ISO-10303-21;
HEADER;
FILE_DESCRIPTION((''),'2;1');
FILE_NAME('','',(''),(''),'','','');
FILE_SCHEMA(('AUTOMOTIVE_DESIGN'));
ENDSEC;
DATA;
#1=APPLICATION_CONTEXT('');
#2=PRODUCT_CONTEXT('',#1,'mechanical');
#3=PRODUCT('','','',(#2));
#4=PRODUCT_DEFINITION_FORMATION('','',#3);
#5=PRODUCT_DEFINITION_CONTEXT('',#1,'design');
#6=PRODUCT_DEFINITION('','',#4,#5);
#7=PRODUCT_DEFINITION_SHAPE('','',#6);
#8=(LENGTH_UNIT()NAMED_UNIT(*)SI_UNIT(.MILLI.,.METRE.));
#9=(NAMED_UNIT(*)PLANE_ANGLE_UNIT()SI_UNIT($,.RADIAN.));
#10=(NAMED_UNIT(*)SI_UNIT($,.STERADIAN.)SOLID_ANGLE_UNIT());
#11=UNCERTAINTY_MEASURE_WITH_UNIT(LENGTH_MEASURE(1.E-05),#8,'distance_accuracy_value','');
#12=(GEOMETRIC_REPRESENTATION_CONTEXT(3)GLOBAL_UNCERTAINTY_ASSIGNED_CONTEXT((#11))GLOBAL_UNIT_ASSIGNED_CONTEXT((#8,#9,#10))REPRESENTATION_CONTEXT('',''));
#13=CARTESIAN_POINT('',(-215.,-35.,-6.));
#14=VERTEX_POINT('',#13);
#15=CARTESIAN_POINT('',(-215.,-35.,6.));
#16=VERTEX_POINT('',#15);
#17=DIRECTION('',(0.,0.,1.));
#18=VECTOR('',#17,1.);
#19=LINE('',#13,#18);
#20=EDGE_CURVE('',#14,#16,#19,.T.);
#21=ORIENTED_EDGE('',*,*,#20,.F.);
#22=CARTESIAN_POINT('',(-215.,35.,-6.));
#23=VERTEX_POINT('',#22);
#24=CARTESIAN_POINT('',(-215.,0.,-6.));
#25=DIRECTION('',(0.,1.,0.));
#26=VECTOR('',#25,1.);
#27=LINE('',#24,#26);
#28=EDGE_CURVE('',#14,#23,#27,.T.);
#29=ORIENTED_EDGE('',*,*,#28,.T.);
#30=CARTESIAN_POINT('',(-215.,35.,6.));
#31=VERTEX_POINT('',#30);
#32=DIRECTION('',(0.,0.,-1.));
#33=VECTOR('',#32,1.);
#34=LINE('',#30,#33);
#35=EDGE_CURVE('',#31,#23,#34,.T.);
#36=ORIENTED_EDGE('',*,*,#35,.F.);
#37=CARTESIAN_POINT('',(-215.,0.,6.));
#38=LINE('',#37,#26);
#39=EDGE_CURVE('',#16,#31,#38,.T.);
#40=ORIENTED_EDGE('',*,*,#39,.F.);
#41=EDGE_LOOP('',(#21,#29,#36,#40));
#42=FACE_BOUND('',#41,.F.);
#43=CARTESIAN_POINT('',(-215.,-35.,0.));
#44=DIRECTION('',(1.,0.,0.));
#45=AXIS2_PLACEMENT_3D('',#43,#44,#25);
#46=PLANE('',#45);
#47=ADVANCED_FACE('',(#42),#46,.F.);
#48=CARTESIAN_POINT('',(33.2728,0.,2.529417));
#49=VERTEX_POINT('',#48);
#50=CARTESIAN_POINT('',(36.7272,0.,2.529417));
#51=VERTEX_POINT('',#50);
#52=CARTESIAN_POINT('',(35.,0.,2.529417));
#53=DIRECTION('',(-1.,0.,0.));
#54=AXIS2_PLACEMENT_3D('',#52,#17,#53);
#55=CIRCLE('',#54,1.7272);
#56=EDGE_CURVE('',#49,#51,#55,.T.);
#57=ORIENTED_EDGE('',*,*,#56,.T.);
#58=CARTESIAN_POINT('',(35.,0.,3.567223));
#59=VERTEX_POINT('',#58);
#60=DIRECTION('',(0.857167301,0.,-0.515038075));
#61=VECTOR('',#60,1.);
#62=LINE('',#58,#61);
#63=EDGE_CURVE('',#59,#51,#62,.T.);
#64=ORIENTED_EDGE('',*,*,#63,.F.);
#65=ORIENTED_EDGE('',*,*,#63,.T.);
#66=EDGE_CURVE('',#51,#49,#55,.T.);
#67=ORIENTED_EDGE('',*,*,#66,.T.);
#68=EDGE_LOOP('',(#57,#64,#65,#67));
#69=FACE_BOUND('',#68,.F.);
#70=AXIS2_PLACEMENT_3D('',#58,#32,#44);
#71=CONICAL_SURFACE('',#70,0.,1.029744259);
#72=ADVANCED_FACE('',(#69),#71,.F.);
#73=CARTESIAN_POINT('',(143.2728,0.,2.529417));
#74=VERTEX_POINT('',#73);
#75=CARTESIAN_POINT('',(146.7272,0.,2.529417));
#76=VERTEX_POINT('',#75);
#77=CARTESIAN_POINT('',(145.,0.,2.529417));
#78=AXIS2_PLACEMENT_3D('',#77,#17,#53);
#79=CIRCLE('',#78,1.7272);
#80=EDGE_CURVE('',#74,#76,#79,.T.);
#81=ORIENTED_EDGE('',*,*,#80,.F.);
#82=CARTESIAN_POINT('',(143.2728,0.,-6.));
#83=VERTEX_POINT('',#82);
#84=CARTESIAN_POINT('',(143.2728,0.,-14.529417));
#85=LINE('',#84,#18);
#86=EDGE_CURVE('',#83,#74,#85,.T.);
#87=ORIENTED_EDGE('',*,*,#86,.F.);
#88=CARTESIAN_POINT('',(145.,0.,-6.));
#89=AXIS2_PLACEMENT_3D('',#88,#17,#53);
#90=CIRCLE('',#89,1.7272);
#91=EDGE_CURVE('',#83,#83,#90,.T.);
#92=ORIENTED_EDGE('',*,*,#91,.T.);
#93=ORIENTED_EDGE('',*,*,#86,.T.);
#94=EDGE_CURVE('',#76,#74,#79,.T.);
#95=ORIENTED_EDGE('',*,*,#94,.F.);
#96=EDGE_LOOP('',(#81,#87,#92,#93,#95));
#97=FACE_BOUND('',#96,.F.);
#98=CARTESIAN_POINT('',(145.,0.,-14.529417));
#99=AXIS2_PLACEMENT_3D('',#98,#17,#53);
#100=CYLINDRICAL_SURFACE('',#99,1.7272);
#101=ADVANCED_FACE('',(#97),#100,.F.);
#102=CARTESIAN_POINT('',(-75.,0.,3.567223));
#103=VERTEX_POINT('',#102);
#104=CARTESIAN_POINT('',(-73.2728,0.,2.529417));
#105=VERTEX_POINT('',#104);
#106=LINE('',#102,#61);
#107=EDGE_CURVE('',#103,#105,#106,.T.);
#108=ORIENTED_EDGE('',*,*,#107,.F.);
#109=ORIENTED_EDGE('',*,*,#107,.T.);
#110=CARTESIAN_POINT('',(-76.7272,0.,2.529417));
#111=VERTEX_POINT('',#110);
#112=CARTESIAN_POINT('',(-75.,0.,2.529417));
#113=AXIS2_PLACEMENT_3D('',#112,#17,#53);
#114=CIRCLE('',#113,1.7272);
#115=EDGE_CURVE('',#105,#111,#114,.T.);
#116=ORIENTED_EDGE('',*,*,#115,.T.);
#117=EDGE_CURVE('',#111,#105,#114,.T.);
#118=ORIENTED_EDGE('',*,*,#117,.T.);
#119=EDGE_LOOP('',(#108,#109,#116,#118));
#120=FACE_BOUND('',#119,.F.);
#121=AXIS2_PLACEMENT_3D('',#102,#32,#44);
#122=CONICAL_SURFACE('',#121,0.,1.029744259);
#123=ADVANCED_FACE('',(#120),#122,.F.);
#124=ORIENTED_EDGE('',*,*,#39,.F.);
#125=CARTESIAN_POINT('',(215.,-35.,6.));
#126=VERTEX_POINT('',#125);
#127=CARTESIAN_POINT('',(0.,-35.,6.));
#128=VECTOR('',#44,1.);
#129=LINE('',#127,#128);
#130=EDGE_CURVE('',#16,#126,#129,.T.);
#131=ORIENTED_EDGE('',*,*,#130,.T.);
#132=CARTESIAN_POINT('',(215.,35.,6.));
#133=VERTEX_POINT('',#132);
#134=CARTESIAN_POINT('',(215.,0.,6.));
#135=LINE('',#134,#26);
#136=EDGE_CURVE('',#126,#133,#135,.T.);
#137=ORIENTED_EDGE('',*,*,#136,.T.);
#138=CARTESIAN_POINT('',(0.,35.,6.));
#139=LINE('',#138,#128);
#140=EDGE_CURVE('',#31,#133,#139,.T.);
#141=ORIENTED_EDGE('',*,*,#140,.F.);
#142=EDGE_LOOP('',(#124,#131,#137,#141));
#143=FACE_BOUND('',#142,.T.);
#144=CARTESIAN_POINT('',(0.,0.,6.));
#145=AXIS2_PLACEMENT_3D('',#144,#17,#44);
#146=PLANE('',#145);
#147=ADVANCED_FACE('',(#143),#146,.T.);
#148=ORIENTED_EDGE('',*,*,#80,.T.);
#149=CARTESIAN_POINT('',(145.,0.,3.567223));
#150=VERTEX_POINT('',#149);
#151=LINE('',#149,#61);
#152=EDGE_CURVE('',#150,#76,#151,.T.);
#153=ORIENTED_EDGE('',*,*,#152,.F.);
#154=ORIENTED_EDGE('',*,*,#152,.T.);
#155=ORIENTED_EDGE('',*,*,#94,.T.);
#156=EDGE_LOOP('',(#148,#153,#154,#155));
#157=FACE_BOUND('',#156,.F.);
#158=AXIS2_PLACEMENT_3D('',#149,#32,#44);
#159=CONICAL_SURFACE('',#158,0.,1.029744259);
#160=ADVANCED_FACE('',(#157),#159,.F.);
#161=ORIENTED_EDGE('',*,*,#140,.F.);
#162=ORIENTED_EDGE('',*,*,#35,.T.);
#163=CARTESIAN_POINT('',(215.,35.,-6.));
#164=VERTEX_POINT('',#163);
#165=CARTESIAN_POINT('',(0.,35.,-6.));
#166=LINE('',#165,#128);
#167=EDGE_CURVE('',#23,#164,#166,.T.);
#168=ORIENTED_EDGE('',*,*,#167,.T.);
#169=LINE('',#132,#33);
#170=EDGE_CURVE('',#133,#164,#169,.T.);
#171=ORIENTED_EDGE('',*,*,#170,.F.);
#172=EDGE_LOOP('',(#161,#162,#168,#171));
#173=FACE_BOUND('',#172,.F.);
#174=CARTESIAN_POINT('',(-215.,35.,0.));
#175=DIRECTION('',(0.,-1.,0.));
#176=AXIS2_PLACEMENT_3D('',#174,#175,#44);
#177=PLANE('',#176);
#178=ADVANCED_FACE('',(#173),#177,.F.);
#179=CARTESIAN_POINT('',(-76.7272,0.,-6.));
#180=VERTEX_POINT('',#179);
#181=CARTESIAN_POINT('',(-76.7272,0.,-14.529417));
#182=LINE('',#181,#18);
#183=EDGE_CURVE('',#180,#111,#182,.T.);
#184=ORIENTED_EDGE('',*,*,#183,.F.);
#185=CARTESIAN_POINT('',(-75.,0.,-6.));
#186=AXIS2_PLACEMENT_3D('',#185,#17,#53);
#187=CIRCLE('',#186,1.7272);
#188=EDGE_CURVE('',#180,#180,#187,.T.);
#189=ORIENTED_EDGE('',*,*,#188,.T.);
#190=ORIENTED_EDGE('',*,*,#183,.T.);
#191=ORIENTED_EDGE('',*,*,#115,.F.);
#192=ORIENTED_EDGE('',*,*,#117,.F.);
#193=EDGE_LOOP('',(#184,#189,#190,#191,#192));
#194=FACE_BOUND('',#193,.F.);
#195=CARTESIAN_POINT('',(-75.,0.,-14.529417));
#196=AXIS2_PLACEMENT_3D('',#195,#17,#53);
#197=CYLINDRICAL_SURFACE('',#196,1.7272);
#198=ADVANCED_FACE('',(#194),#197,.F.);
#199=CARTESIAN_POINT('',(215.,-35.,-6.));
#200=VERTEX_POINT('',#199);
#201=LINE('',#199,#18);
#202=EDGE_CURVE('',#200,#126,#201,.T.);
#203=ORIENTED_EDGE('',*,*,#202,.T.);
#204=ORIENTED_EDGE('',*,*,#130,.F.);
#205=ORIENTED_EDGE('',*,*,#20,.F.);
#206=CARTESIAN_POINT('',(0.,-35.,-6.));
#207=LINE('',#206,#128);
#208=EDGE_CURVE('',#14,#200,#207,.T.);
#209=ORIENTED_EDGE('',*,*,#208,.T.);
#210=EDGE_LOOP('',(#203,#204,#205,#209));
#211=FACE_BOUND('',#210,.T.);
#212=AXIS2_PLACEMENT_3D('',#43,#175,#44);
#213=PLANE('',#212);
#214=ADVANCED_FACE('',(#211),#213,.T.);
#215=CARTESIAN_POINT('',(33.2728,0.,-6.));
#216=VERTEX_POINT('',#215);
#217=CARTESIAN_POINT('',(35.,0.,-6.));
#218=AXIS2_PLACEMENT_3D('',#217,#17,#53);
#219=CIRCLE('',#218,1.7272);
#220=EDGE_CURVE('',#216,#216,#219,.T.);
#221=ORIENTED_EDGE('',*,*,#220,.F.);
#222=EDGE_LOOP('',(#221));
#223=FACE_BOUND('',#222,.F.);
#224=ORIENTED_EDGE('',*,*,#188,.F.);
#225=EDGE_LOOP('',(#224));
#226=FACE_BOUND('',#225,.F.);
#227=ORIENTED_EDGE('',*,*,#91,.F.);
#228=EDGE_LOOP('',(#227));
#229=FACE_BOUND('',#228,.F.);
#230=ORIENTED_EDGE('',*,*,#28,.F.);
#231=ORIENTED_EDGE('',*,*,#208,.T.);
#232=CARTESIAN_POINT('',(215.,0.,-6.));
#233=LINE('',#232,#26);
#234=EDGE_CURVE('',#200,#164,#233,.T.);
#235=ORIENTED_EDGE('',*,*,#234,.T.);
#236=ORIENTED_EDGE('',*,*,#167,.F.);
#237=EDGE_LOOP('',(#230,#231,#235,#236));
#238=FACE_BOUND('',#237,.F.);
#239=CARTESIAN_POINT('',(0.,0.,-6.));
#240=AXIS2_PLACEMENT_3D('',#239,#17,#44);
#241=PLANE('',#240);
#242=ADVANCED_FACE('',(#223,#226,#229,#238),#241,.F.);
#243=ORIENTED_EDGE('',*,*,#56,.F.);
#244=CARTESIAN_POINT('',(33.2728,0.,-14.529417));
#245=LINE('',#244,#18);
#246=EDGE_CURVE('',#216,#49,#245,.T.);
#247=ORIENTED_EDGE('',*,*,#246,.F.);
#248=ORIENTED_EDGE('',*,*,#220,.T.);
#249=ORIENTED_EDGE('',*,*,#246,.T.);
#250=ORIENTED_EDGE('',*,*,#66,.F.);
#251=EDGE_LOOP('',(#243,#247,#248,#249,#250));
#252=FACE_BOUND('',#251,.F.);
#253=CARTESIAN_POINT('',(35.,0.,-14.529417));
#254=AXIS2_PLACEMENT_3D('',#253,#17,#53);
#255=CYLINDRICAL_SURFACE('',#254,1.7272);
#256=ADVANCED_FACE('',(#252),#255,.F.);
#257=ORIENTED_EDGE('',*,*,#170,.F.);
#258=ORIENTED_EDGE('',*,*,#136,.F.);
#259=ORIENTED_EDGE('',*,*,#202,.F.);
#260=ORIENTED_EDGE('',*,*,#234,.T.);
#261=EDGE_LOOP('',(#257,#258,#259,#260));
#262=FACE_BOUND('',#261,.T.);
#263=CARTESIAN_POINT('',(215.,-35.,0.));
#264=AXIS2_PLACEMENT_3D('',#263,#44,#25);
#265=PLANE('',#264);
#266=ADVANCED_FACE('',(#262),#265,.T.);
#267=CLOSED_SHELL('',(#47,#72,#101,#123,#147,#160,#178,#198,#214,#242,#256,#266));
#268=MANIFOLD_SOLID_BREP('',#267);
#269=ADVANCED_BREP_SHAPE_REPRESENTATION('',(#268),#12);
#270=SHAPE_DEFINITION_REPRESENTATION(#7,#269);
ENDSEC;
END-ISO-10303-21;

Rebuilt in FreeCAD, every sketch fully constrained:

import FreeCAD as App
import Part
import Sketcher

V = App.Vector

doc = App.newDocument("Part")
params = doc.addObject("Spreadsheet::Sheet", "Params")
for row, (alias, value) in enumerate([
    ("sketch1_width", "430 mm"),
    ("sketch1_height", "70 mm"),
    ("pad1_length", "6 mm"),
    ("pad1_length2", "6 mm"),
    ("hole_diameter", "3.4544 mm"),
    ("hole_depth", "8.529417 mm"),
], start=1):
    params.set(f"A{row}", alias)
    params.set(f"B{row}", "=" + value)
    params.setAlias(f"B{row}", alias)

body = doc.addObject("PartDesign::Body", "Body")

# Sketch on XY plane
sketch1 = doc.addObject("Sketcher::SketchObject", "Sketch")
body.addObject(sketch1)
sketch1.AttachmentSupport = (doc.XY_Plane, [""])
sketch1.MapMode = "FlatFace"
sketch1.addGeometry(Part.LineSegment(V(-215, 35, 0), V(-215, -35, 0)), False)
sketch1.addGeometry(Part.LineSegment(V(-215, -35, 0), V(215, -35, 0)), False)
sketch1.addGeometry(Part.LineSegment(V(215, -35, 0), V(215, 35, 0)), False)
sketch1.addGeometry(Part.LineSegment(V(215, 35, 0), V(-215, 35, 0)), False)
sketch1.addConstraint(Sketcher.Constraint("Coincident", 0, 2, 1, 1))
sketch1.addConstraint(Sketcher.Constraint("Coincident", 1, 2, 2, 1))
sketch1.addConstraint(Sketcher.Constraint("Coincident", 2, 2, 3, 1))
sketch1.addConstraint(Sketcher.Constraint("Coincident", 3, 2, 0, 1))
sketch1.addConstraint(Sketcher.Constraint("Vertical", 0))
sketch1.addConstraint(Sketcher.Constraint("Horizontal", 1))
sketch1.addConstraint(Sketcher.Constraint("Vertical", 2))
sketch1.addConstraint(Sketcher.Constraint("Horizontal", 3))
sketch1.addConstraint(Sketcher.Constraint("Symmetric", 0, 2, 2, 2, -1, 1))
sketch1.addConstraint(Sketcher.Constraint("DistanceX", 1, 1, 1, 2, 430.0))
sketch1.addConstraint(Sketcher.Constraint("DistanceY", 0, 2, 0, 1, 70.0))
sketch1.setExpression("Constraints[9]", "Params.sketch1_width")
sketch1.setExpression("Constraints[10]", "Params.sketch1_height")
pad1 = doc.addObject("PartDesign::Pad", "Pad")
body.addObject(pad1)
pad1.Profile = sketch1
pad1.Type = "TwoLengths"
pad1.setExpression("Length", "Params.pad1_length")
pad1.setExpression("Length2", "Params.pad1_length2")

# Sketch on XY plane
sketch2 = doc.addObject("Sketcher::SketchObject", "Sketch001")
body.addObject(sketch2)
sketch2.AttachmentSupport = (doc.XY_Plane, [""])
sketch2.MapMode = "FlatFace"
sketch2.AttachmentOffset = App.Placement(V(0, 0, -6), App.Rotation())
sketch2.addGeometry(Part.Circle(V(-75, 0, 0), V(0, 0, 1), 1.7272), False)
sketch2.addGeometry(Part.Circle(V(145, 0, 0), V(0, 0, 1), 1.7272), False)
sketch2.addGeometry(Part.Circle(V(35, 0, 0), V(0, 0, 1), 1.7272), False)
sketch2.addConstraint(Sketcher.Constraint("Equal", 0, 1))
sketch2.addConstraint(Sketcher.Constraint("Equal", 1, 2))
sketch2.addConstraint(Sketcher.Constraint("PointOnObject", 0, 3, -1))
sketch2.addConstraint(Sketcher.Constraint("PointOnObject", 1, 3, -1))
sketch2.addConstraint(Sketcher.Constraint("PointOnObject", 2, 3, -1))
sketch2.addConstraint(Sketcher.Constraint("DistanceX", 0, 3, -1, 1, 75.0))
sketch2.addConstraint(Sketcher.Constraint("DistanceX", -1, 1, 1, 3, 145.0))
sketch2.addConstraint(Sketcher.Constraint("DistanceX", -1, 1, 2, 3, 35.0))
sketch2.addConstraint(Sketcher.Constraint("Diameter", 0, 3.4544))
doc.recompute()
hole = doc.addObject("PartDesign::Hole", "Hole")
body.addObject(hole)
hole.Profile = sketch2
hole.ThreadType = "None"
hole.setExpression("Diameter", "Params.hole_diameter")
hole.DepthType = "Dimension"
hole.setExpression("Depth", "Params.hole_depth")
hole.DrillPoint = "Angled"
hole.DrillPointAngle = 118
hole.Reversed = True

doc.recompute()
